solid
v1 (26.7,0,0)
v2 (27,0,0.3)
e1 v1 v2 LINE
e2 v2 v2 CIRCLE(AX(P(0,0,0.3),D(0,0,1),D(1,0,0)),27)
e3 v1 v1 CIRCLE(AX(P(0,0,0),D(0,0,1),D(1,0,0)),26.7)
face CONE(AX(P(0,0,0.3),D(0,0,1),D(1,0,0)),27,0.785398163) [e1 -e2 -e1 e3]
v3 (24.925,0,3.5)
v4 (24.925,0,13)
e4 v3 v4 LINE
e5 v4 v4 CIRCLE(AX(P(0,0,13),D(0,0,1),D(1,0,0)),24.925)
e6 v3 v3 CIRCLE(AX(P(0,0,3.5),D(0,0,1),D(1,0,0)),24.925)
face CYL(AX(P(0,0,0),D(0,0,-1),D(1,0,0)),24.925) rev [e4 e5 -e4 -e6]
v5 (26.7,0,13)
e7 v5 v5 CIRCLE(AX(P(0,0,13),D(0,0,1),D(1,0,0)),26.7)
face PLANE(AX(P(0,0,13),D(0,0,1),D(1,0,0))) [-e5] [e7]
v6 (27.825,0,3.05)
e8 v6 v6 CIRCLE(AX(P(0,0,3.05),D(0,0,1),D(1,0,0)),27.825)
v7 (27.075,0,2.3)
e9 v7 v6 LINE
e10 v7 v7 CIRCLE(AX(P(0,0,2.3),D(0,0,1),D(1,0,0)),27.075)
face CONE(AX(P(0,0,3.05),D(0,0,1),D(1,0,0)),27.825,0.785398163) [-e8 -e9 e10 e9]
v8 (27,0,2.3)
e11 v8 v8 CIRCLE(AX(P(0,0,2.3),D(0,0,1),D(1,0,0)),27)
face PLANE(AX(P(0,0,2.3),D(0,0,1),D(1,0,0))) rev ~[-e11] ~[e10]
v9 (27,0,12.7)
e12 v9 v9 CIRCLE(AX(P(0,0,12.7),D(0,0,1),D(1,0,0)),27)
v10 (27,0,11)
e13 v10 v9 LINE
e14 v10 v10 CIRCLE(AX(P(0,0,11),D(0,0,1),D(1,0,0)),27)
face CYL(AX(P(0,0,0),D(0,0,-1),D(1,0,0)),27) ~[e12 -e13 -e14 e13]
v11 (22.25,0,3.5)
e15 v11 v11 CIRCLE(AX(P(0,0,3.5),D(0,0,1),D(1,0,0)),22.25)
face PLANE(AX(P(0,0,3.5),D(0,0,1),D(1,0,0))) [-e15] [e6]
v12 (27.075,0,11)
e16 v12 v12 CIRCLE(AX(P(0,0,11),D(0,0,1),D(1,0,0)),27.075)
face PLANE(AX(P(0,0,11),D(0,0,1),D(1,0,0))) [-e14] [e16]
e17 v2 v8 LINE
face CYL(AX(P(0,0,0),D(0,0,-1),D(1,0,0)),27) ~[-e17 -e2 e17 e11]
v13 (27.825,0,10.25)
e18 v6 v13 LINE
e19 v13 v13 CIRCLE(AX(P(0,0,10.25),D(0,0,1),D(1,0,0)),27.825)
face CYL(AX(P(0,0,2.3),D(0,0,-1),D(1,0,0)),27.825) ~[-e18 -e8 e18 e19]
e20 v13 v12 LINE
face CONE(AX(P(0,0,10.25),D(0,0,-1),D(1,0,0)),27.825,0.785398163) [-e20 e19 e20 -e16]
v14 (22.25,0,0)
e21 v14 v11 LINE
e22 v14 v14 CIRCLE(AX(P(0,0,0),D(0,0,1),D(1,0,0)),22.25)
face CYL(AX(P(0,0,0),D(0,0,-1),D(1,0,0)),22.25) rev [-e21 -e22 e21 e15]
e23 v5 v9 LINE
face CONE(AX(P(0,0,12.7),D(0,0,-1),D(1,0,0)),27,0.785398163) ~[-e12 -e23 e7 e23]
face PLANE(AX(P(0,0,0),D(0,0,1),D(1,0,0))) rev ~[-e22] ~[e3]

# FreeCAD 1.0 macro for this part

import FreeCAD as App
import Part
import Sketcher
from FreeCAD import Vector


def edges_at(feature, points):
    """Names of the edges that pass closest to the given points."""
    edges = feature.Shape.Edges
    near = lambda p: min(range(len(edges)), key=lambda i: edges[i].distToShape(Part.Vertex(*p))[0])
    return sorted({f"Edge{near(p) + 1}" for p in points})

doc = App.newDocument("Part")
body = doc.addObject("PartDesign::Body", "Body")

sketch1 = doc.addObject("Sketcher::SketchObject", "Sketch")
body.addObject(sketch1)
sketch1.AttachmentSupport = (doc.XY_Plane, [""])
sketch1.MapMode = "FlatFace"
sketch1.addGeometry(Part.Circle(Vector(0, 0, 0), Vector(0, 0, 1), 27), False)
sketch1.addGeometry(Part.Circle(Vector(0, 0, 0), Vector(0, 0, 1), 24.925), False)
sketch1.addConstraint(Sketcher.Constraint("Coincident", 0, 3, -1, 1))
sketch1.addConstraint(Sketcher.Constraint("Coincident", 1, 3, -1, 1))
sketch1.addConstraint(Sketcher.Constraint("Diameter", 0, 54.0))
sketch1.addConstraint(Sketcher.Constraint("Diameter", 1, 49.85))
pad1 = doc.addObject("PartDesign::Pad", "Pad")
body.addObject(pad1)
pad1.Profile = sketch1
pad1.Length = 13

sketch2 = doc.addObject("Sketcher::SketchObject", "Sketch001")
body.addObject(sketch2)
sketch2.AttachmentSupport = (doc.XY_Plane, [""])
sketch2.MapMode = "FlatFace"
sketch2.addGeometry(Part.Circle(Vector(0, 0, 0), Vector(0, 0, 1), 24.925), False)
sketch2.addGeometry(Part.Circle(Vector(0, 0, 0), Vector(0, 0, 1), 22.25), False)
sketch2.addConstraint(Sketcher.Constraint("Coincident", 0, 3, -1, 1))
sketch2.addConstraint(Sketcher.Constraint("Coincident", 1, 3, -1, 1))
sketch2.addConstraint(Sketcher.Constraint("Diameter", 1, 44.5))
sketch2.addConstraint(Sketcher.Constraint("Diameter", 0, 49.85))
pad2 = doc.addObject("PartDesign::Pad", "Pad001")
body.addObject(pad2)
pad2.Profile = sketch2
pad2.Length = 3.5

sketch3 = doc.addObject("Sketcher::SketchObject", "Sketch002")
body.addObject(sketch3)
sketch3.AttachmentSupport = (doc.XY_Plane, [""])
sketch3.MapMode = "FlatFace"
sketch3.AttachmentOffset = App.Placement(Vector(0, 0, 2.3), App.Rotation())
sketch3.addGeometry(Part.Circle(Vector(0, 0, 0), Vector(0, 0, 1), 27.825), False)
sketch3.addGeometry(Part.Circle(Vector(0, 0, 0), Vector(0, 0, 1), 27), False)
sketch3.addConstraint(Sketcher.Constraint("Coincident", 0, 3, -1, 1))
sketch3.addConstraint(Sketcher.Constraint("Coincident", 1, 3, -1, 1))
sketch3.addConstraint(Sketcher.Constraint("Diameter", 1, 54.0))
sketch3.addConstraint(Sketcher.Constraint("Diameter", 0, 55.65))
pad3 = doc.addObject("PartDesign::Pad", "Pad002")
body.addObject(pad3)
pad3.Profile = sketch3
pad3.Length = 8.7
doc.recompute()

chamfer = doc.addObject("PartDesign::Chamfer", "Chamfer")
body.addObject(chamfer)
chamfer.Base = (pad3, edges_at(pad3, [(-27, 0, 13), (-27, 0, 0)]))
chamfer.Size = 0.3
doc.recompute()

chamfer2 = doc.addObject("PartDesign::Chamfer", "Chamfer001")
body.addObject(chamfer2)
chamfer2.Base = (chamfer, edges_at(chamfer, [(27.825, 0, 6.65), (-27.825, 0, 2.3), (-27.825, 0, 11)]))
chamfer2.Size = 0.75

doc.recompute()
